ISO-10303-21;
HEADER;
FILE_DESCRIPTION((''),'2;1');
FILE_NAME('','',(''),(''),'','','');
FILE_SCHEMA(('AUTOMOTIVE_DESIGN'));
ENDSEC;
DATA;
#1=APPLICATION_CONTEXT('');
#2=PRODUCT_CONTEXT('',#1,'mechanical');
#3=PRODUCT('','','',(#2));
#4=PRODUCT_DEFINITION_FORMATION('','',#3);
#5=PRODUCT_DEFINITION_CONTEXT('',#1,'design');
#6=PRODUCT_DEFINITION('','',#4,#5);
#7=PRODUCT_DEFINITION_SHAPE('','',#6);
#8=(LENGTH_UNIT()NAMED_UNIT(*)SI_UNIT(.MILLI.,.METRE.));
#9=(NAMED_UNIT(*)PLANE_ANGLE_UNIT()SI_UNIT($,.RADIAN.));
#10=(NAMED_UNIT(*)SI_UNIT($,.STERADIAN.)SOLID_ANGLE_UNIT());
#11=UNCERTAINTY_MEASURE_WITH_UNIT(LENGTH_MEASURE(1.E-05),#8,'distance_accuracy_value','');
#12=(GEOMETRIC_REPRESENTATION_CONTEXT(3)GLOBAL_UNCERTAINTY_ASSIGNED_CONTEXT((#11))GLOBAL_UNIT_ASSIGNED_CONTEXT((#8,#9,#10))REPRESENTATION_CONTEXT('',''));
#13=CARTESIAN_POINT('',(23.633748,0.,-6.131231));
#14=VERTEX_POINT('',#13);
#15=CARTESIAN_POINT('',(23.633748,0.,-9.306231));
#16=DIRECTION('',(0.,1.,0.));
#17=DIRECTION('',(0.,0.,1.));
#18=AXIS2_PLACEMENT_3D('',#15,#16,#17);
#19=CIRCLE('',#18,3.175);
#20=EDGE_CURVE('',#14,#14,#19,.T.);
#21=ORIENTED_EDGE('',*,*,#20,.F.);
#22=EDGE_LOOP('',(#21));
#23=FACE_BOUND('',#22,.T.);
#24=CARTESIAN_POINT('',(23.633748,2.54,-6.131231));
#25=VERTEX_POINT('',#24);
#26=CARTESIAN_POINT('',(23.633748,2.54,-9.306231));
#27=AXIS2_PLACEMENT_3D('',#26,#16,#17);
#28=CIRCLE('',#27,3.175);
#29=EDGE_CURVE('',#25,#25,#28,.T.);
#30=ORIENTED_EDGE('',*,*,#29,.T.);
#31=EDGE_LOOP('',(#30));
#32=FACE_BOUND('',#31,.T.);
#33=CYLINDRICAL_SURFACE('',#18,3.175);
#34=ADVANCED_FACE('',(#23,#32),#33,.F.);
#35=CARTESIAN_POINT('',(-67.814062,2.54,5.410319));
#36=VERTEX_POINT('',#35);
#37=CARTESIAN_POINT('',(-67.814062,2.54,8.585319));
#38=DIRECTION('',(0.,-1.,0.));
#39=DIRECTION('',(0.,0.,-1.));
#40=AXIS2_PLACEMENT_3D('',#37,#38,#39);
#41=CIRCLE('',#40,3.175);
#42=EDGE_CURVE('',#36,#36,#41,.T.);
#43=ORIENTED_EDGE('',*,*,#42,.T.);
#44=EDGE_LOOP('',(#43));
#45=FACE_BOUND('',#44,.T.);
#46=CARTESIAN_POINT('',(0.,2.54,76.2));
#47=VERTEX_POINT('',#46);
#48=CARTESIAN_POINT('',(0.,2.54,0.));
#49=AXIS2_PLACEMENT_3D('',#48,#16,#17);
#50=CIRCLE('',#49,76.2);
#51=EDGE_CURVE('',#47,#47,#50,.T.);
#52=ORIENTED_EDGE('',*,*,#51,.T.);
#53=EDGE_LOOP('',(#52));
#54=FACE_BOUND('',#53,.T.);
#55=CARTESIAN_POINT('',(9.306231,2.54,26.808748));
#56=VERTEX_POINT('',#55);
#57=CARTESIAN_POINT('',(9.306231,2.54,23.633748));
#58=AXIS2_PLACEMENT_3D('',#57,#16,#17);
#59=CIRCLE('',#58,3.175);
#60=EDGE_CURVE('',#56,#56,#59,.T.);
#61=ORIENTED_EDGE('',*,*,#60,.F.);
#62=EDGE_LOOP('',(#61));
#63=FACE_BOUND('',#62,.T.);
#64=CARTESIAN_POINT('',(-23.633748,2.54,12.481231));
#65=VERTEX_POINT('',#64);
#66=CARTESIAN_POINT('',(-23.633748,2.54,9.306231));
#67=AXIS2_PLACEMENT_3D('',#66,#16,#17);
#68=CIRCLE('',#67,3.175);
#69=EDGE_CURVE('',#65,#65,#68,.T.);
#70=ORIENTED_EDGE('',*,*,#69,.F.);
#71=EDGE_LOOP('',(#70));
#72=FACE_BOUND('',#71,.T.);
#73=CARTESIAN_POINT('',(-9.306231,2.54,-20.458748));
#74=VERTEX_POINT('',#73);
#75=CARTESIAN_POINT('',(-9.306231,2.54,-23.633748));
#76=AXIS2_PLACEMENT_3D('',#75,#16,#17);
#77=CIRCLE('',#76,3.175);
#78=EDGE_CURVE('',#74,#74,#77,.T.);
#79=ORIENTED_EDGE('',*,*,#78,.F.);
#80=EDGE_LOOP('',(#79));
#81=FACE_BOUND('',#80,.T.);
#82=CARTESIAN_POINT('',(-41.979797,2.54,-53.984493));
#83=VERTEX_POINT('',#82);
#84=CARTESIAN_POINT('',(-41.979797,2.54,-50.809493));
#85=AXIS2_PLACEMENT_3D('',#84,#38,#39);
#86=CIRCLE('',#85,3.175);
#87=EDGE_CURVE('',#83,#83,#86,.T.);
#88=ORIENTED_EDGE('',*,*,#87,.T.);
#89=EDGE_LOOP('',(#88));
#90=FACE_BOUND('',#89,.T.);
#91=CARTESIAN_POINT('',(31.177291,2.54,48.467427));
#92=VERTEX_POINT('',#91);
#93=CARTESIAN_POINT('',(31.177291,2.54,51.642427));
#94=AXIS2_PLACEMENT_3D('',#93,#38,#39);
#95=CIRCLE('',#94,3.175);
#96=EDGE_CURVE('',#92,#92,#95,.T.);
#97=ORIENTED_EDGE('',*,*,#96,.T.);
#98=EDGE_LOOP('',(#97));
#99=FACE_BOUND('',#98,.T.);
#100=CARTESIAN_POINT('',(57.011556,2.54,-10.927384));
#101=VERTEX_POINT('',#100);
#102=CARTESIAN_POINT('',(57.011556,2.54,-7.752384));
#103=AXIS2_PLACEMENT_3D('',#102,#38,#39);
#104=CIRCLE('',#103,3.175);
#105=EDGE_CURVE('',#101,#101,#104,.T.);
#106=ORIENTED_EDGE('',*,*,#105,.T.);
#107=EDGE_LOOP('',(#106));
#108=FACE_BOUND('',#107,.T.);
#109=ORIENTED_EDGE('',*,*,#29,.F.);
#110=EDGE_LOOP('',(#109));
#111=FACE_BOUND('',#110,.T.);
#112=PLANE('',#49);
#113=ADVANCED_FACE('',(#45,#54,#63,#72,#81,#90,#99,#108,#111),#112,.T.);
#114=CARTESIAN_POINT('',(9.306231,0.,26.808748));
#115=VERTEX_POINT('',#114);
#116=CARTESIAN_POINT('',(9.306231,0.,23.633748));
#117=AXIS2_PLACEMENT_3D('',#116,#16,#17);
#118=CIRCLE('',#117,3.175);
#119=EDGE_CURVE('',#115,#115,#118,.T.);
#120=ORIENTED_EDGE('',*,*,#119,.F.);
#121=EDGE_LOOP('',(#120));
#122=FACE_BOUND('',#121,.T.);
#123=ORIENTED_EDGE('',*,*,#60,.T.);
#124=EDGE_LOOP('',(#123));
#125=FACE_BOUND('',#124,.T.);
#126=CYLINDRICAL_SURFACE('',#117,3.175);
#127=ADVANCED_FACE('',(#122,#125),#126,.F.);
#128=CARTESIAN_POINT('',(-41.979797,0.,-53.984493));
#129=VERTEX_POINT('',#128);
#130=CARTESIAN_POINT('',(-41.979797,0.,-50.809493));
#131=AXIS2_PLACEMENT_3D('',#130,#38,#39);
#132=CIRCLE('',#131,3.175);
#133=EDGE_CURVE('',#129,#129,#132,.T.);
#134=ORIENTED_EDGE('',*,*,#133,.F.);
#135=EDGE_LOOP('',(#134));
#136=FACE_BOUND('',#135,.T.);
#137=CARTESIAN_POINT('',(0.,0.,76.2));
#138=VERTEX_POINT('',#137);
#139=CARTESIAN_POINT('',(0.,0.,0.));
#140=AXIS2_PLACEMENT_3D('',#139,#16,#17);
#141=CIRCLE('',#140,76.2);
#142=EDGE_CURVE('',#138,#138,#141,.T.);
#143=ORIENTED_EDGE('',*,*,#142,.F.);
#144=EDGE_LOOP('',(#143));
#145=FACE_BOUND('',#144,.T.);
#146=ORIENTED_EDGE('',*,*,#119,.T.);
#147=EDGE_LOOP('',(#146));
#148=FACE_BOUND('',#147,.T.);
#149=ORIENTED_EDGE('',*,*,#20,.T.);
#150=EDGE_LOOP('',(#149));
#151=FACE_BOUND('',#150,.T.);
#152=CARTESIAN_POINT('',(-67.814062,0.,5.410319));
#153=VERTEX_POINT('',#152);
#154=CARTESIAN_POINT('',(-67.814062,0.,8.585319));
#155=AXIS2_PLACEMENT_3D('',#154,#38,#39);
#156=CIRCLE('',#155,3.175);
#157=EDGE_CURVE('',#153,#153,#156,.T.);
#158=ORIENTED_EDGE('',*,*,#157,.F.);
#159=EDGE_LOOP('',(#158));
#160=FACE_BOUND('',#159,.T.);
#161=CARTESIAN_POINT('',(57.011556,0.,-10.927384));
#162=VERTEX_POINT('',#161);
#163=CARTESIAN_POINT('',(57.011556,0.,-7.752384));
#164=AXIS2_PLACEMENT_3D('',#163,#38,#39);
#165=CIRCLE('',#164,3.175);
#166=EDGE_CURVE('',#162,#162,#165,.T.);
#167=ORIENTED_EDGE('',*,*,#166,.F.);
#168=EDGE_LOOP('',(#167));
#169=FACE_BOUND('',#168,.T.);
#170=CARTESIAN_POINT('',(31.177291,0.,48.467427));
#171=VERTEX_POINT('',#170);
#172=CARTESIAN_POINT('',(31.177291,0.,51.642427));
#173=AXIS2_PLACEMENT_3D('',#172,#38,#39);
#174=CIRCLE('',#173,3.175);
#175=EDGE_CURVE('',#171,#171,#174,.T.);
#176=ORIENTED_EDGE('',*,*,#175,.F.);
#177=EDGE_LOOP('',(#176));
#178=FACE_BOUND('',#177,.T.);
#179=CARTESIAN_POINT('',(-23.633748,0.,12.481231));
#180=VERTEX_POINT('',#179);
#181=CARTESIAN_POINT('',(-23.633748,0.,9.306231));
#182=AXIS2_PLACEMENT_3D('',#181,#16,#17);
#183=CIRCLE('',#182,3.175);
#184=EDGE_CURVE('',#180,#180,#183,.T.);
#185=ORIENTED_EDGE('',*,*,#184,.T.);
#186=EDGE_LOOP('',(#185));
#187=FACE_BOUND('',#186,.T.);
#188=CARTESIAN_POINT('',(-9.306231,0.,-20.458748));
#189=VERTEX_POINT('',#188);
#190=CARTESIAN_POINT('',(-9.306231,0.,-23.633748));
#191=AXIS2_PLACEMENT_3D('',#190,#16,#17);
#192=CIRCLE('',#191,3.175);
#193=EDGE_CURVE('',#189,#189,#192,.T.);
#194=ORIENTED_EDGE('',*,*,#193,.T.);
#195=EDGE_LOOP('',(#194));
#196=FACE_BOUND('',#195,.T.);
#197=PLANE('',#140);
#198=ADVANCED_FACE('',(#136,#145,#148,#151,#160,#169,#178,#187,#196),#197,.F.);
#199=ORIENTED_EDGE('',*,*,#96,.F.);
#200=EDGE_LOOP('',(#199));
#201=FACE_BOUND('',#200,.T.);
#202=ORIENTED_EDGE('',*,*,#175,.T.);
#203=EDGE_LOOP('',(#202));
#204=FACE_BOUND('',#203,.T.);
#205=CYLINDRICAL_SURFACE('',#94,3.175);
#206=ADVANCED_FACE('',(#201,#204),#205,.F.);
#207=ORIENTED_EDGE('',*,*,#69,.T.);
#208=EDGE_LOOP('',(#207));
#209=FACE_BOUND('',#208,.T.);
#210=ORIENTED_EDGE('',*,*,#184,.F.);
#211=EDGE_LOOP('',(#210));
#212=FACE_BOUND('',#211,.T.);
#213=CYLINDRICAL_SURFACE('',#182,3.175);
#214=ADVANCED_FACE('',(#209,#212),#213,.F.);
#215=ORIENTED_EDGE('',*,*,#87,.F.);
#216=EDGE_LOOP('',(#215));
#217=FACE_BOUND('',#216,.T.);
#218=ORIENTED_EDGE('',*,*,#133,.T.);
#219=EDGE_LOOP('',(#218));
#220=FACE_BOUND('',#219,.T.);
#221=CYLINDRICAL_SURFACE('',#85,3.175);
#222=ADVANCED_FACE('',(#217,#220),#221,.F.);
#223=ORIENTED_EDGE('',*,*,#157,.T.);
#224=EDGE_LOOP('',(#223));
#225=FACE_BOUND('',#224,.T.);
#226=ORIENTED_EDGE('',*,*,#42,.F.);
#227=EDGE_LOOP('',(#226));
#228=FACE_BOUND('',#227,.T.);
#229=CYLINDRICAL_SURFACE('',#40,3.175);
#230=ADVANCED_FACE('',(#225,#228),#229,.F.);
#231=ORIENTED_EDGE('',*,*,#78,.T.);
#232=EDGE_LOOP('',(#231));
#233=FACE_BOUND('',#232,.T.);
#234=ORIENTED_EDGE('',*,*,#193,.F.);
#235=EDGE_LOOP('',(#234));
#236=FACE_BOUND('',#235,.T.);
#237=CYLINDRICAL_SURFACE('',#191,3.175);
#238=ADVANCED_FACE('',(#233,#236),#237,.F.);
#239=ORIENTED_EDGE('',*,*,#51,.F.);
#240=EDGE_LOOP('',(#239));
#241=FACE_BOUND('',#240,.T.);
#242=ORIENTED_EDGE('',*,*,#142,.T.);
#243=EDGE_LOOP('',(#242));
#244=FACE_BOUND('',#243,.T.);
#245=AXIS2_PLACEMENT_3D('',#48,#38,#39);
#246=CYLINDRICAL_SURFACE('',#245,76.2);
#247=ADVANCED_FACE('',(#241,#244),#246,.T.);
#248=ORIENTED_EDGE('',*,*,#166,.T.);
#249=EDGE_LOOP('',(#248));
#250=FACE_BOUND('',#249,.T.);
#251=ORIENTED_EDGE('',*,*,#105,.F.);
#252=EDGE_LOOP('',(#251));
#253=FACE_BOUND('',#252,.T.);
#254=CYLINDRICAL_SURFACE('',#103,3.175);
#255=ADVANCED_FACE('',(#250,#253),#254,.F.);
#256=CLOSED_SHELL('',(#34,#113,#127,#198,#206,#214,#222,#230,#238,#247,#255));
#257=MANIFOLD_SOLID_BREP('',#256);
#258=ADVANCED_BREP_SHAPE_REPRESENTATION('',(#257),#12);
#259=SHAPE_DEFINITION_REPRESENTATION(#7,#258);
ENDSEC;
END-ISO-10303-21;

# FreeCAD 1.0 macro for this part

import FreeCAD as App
import Part
import Sketcher

V = App.Vector
Q = App.Units.Quantity

doc = App.newDocument("Part")
body = doc.addObject("PartDesign::Body", "Body")

sketch1 = doc.addObject("Sketcher::SketchObject", "Sketch")
body.addObject(sketch1)
sketch1.AttachmentSupport = (doc.XZ_Plane, [""])
sketch1.MapMode = "FlatFace"
sketch1.addGeometry(Part.Circle(V(0, 0, 0), V(0, 0, 1), 76.2), False)
sketch1.addConstraint(Sketcher.Constraint("Coincident", 0, 3, -1, 1))
sketch1.addConstraint(Sketcher.Constraint("Diameter", 0, Q("6 in")))
pad1 = doc.addObject("PartDesign::Pad", "Pad")
body.addObject(pad1)
pad1.Profile = sketch1
pad1.Length = Q("0.1 in")
pad1.Reversed = True

sketch2 = doc.addObject("Sketcher::SketchObject", "Sketch001")
body.addObject(sketch2)
sketch2.AttachmentSupport = (doc.XZ_Plane, [""])
sketch2.MapMode = "FlatFace"
sketch2.addGeometry(Part.Circle(V(-67.814062, 8.585319, 0), V(0, 0, 1), 3.175), False)
sketch2.addGeometry(Part.Circle(V(-41.979797, -50.809493, 0), V(0, 0, 1), 3.175), False)
sketch2.addGeometry(Part.Circle(V(57.011556, -7.752384, 0), V(0, 0, 1), 3.175), False)
sketch2.addGeometry(Part.Circle(V(31.177291, 51.642427, 0), V(0, 0, 1), 3.175), False)
sketch2.addConstraint(Sketcher.Constraint("Equal", 0, 1))
sketch2.addConstraint(Sketcher.Constraint("Equal", 1, 2))
sketch2.addConstraint(Sketcher.Constraint("Equal", 2, 3))
sketch2.addConstraint(Sketcher.Constraint("Diameter", 0, Q("0.25 in")))
sketch2.addConstraint(Sketcher.Constraint("DistanceX", 0, 3, -1, 1, Q("67.814062 mm")))
sketch2.addConstraint(Sketcher.Constraint("DistanceY", -1, 1, 0, 3, Q("8.585319 mm")))
sketch2.addConstraint(Sketcher.Constraint("DistanceX", -1, 1, 3, 3, Q("31.177291 mm")))
sketch2.addConstraint(Sketcher.Constraint("DistanceY", 1, 3, 0, 3, Q("59.394812 mm")))
sketch2.addConstraint(Sketcher.Constraint("DistanceY", 1, 3, 2, 3, Q("43.057109 mm")))
sketch2.addConstraint(Sketcher.Constraint("DistanceY", 2, 3, 3, 3, Q("59.394812 mm")))
sketch2.addConstraint(Sketcher.Constraint("DistanceX", 1, 3, -1, 1, Q("41.979797 mm")))
sketch2.addConstraint(Sketcher.Constraint("DistanceX", -1, 1, 2, 3, Q("57.011556 mm")))
pocket1 = doc.addObject("PartDesign::Pocket", "Pocket")
body.addObject(pocket1)
pocket1.Profile = sketch2
pocket1.Length = Q("0.1 in")

sketch3 = doc.addObject("Sketcher::SketchObject", "Sketch002")
body.addObject(sketch3)
sketch3.AttachmentSupport = (doc.XZ_Plane, [""])
sketch3.MapMode = "FlatFace"
sketch3.AttachmentOffset = App.Placement(V(0, 0, -0.1 * 25.4), App.Rotation())
sketch3.addGeometry(Part.Circle(V(-9.306231, -23.633748, 0), V(0, 0, 1), 3.175), False)
sketch3.addGeometry(Part.Circle(V(23.633748, -9.306231, 0), V(0, 0, 1), 3.175), False)
sketch3.addGeometry(Part.Circle(V(9.306231, 23.633748, 0), V(0, 0, 1), 3.175), False)
sketch3.addGeometry(Part.Circle(V(-23.633748, 9.306231, 0), V(0, 0, 1), 3.175), False)
sketch3.addConstraint(Sketcher.Constraint("Equal", 0, 1))
sketch3.addConstraint(Sketcher.Constraint("Equal", 1, 2))
sketch3.addConstraint(Sketcher.Constraint("Equal", 2, 3))
sketch3.addConstraint(Sketcher.Constraint("Symmetric", 0, 3, 2, 3, -1, 1))
sketch3.addConstraint(Sketcher.Constraint("Symmetric", 1, 3, 3, 3, -1, 1))
sketch3.addConstraint(Sketcher.Constraint("Diameter", 0, Q("0.25 in")))
sketch3.addConstraint(Sketcher.Constraint("DistanceX", 0, 3, -1, 1, Q("9.306231 mm")))
sketch3.addConstraint(Sketcher.Constraint("DistanceY", 0, 3, -1, 1, Q("23.633748 mm")))
sketch3.addConstraint(Sketcher.Constraint("DistanceX", -1, 1, 1, 3, Q("23.633748 mm")))
sketch3.addConstraint(Sketcher.Constraint("DistanceY", 1, 3, -1, 1, Q("9.306231 mm")))
pocket2 = doc.addObject("PartDesign::Pocket", "Pocket001")
body.addObject(pocket2)
pocket2.Profile = sketch3
pocket2.Type = "ThroughAll"
pocket2.Reversed = True

doc.recompute()
